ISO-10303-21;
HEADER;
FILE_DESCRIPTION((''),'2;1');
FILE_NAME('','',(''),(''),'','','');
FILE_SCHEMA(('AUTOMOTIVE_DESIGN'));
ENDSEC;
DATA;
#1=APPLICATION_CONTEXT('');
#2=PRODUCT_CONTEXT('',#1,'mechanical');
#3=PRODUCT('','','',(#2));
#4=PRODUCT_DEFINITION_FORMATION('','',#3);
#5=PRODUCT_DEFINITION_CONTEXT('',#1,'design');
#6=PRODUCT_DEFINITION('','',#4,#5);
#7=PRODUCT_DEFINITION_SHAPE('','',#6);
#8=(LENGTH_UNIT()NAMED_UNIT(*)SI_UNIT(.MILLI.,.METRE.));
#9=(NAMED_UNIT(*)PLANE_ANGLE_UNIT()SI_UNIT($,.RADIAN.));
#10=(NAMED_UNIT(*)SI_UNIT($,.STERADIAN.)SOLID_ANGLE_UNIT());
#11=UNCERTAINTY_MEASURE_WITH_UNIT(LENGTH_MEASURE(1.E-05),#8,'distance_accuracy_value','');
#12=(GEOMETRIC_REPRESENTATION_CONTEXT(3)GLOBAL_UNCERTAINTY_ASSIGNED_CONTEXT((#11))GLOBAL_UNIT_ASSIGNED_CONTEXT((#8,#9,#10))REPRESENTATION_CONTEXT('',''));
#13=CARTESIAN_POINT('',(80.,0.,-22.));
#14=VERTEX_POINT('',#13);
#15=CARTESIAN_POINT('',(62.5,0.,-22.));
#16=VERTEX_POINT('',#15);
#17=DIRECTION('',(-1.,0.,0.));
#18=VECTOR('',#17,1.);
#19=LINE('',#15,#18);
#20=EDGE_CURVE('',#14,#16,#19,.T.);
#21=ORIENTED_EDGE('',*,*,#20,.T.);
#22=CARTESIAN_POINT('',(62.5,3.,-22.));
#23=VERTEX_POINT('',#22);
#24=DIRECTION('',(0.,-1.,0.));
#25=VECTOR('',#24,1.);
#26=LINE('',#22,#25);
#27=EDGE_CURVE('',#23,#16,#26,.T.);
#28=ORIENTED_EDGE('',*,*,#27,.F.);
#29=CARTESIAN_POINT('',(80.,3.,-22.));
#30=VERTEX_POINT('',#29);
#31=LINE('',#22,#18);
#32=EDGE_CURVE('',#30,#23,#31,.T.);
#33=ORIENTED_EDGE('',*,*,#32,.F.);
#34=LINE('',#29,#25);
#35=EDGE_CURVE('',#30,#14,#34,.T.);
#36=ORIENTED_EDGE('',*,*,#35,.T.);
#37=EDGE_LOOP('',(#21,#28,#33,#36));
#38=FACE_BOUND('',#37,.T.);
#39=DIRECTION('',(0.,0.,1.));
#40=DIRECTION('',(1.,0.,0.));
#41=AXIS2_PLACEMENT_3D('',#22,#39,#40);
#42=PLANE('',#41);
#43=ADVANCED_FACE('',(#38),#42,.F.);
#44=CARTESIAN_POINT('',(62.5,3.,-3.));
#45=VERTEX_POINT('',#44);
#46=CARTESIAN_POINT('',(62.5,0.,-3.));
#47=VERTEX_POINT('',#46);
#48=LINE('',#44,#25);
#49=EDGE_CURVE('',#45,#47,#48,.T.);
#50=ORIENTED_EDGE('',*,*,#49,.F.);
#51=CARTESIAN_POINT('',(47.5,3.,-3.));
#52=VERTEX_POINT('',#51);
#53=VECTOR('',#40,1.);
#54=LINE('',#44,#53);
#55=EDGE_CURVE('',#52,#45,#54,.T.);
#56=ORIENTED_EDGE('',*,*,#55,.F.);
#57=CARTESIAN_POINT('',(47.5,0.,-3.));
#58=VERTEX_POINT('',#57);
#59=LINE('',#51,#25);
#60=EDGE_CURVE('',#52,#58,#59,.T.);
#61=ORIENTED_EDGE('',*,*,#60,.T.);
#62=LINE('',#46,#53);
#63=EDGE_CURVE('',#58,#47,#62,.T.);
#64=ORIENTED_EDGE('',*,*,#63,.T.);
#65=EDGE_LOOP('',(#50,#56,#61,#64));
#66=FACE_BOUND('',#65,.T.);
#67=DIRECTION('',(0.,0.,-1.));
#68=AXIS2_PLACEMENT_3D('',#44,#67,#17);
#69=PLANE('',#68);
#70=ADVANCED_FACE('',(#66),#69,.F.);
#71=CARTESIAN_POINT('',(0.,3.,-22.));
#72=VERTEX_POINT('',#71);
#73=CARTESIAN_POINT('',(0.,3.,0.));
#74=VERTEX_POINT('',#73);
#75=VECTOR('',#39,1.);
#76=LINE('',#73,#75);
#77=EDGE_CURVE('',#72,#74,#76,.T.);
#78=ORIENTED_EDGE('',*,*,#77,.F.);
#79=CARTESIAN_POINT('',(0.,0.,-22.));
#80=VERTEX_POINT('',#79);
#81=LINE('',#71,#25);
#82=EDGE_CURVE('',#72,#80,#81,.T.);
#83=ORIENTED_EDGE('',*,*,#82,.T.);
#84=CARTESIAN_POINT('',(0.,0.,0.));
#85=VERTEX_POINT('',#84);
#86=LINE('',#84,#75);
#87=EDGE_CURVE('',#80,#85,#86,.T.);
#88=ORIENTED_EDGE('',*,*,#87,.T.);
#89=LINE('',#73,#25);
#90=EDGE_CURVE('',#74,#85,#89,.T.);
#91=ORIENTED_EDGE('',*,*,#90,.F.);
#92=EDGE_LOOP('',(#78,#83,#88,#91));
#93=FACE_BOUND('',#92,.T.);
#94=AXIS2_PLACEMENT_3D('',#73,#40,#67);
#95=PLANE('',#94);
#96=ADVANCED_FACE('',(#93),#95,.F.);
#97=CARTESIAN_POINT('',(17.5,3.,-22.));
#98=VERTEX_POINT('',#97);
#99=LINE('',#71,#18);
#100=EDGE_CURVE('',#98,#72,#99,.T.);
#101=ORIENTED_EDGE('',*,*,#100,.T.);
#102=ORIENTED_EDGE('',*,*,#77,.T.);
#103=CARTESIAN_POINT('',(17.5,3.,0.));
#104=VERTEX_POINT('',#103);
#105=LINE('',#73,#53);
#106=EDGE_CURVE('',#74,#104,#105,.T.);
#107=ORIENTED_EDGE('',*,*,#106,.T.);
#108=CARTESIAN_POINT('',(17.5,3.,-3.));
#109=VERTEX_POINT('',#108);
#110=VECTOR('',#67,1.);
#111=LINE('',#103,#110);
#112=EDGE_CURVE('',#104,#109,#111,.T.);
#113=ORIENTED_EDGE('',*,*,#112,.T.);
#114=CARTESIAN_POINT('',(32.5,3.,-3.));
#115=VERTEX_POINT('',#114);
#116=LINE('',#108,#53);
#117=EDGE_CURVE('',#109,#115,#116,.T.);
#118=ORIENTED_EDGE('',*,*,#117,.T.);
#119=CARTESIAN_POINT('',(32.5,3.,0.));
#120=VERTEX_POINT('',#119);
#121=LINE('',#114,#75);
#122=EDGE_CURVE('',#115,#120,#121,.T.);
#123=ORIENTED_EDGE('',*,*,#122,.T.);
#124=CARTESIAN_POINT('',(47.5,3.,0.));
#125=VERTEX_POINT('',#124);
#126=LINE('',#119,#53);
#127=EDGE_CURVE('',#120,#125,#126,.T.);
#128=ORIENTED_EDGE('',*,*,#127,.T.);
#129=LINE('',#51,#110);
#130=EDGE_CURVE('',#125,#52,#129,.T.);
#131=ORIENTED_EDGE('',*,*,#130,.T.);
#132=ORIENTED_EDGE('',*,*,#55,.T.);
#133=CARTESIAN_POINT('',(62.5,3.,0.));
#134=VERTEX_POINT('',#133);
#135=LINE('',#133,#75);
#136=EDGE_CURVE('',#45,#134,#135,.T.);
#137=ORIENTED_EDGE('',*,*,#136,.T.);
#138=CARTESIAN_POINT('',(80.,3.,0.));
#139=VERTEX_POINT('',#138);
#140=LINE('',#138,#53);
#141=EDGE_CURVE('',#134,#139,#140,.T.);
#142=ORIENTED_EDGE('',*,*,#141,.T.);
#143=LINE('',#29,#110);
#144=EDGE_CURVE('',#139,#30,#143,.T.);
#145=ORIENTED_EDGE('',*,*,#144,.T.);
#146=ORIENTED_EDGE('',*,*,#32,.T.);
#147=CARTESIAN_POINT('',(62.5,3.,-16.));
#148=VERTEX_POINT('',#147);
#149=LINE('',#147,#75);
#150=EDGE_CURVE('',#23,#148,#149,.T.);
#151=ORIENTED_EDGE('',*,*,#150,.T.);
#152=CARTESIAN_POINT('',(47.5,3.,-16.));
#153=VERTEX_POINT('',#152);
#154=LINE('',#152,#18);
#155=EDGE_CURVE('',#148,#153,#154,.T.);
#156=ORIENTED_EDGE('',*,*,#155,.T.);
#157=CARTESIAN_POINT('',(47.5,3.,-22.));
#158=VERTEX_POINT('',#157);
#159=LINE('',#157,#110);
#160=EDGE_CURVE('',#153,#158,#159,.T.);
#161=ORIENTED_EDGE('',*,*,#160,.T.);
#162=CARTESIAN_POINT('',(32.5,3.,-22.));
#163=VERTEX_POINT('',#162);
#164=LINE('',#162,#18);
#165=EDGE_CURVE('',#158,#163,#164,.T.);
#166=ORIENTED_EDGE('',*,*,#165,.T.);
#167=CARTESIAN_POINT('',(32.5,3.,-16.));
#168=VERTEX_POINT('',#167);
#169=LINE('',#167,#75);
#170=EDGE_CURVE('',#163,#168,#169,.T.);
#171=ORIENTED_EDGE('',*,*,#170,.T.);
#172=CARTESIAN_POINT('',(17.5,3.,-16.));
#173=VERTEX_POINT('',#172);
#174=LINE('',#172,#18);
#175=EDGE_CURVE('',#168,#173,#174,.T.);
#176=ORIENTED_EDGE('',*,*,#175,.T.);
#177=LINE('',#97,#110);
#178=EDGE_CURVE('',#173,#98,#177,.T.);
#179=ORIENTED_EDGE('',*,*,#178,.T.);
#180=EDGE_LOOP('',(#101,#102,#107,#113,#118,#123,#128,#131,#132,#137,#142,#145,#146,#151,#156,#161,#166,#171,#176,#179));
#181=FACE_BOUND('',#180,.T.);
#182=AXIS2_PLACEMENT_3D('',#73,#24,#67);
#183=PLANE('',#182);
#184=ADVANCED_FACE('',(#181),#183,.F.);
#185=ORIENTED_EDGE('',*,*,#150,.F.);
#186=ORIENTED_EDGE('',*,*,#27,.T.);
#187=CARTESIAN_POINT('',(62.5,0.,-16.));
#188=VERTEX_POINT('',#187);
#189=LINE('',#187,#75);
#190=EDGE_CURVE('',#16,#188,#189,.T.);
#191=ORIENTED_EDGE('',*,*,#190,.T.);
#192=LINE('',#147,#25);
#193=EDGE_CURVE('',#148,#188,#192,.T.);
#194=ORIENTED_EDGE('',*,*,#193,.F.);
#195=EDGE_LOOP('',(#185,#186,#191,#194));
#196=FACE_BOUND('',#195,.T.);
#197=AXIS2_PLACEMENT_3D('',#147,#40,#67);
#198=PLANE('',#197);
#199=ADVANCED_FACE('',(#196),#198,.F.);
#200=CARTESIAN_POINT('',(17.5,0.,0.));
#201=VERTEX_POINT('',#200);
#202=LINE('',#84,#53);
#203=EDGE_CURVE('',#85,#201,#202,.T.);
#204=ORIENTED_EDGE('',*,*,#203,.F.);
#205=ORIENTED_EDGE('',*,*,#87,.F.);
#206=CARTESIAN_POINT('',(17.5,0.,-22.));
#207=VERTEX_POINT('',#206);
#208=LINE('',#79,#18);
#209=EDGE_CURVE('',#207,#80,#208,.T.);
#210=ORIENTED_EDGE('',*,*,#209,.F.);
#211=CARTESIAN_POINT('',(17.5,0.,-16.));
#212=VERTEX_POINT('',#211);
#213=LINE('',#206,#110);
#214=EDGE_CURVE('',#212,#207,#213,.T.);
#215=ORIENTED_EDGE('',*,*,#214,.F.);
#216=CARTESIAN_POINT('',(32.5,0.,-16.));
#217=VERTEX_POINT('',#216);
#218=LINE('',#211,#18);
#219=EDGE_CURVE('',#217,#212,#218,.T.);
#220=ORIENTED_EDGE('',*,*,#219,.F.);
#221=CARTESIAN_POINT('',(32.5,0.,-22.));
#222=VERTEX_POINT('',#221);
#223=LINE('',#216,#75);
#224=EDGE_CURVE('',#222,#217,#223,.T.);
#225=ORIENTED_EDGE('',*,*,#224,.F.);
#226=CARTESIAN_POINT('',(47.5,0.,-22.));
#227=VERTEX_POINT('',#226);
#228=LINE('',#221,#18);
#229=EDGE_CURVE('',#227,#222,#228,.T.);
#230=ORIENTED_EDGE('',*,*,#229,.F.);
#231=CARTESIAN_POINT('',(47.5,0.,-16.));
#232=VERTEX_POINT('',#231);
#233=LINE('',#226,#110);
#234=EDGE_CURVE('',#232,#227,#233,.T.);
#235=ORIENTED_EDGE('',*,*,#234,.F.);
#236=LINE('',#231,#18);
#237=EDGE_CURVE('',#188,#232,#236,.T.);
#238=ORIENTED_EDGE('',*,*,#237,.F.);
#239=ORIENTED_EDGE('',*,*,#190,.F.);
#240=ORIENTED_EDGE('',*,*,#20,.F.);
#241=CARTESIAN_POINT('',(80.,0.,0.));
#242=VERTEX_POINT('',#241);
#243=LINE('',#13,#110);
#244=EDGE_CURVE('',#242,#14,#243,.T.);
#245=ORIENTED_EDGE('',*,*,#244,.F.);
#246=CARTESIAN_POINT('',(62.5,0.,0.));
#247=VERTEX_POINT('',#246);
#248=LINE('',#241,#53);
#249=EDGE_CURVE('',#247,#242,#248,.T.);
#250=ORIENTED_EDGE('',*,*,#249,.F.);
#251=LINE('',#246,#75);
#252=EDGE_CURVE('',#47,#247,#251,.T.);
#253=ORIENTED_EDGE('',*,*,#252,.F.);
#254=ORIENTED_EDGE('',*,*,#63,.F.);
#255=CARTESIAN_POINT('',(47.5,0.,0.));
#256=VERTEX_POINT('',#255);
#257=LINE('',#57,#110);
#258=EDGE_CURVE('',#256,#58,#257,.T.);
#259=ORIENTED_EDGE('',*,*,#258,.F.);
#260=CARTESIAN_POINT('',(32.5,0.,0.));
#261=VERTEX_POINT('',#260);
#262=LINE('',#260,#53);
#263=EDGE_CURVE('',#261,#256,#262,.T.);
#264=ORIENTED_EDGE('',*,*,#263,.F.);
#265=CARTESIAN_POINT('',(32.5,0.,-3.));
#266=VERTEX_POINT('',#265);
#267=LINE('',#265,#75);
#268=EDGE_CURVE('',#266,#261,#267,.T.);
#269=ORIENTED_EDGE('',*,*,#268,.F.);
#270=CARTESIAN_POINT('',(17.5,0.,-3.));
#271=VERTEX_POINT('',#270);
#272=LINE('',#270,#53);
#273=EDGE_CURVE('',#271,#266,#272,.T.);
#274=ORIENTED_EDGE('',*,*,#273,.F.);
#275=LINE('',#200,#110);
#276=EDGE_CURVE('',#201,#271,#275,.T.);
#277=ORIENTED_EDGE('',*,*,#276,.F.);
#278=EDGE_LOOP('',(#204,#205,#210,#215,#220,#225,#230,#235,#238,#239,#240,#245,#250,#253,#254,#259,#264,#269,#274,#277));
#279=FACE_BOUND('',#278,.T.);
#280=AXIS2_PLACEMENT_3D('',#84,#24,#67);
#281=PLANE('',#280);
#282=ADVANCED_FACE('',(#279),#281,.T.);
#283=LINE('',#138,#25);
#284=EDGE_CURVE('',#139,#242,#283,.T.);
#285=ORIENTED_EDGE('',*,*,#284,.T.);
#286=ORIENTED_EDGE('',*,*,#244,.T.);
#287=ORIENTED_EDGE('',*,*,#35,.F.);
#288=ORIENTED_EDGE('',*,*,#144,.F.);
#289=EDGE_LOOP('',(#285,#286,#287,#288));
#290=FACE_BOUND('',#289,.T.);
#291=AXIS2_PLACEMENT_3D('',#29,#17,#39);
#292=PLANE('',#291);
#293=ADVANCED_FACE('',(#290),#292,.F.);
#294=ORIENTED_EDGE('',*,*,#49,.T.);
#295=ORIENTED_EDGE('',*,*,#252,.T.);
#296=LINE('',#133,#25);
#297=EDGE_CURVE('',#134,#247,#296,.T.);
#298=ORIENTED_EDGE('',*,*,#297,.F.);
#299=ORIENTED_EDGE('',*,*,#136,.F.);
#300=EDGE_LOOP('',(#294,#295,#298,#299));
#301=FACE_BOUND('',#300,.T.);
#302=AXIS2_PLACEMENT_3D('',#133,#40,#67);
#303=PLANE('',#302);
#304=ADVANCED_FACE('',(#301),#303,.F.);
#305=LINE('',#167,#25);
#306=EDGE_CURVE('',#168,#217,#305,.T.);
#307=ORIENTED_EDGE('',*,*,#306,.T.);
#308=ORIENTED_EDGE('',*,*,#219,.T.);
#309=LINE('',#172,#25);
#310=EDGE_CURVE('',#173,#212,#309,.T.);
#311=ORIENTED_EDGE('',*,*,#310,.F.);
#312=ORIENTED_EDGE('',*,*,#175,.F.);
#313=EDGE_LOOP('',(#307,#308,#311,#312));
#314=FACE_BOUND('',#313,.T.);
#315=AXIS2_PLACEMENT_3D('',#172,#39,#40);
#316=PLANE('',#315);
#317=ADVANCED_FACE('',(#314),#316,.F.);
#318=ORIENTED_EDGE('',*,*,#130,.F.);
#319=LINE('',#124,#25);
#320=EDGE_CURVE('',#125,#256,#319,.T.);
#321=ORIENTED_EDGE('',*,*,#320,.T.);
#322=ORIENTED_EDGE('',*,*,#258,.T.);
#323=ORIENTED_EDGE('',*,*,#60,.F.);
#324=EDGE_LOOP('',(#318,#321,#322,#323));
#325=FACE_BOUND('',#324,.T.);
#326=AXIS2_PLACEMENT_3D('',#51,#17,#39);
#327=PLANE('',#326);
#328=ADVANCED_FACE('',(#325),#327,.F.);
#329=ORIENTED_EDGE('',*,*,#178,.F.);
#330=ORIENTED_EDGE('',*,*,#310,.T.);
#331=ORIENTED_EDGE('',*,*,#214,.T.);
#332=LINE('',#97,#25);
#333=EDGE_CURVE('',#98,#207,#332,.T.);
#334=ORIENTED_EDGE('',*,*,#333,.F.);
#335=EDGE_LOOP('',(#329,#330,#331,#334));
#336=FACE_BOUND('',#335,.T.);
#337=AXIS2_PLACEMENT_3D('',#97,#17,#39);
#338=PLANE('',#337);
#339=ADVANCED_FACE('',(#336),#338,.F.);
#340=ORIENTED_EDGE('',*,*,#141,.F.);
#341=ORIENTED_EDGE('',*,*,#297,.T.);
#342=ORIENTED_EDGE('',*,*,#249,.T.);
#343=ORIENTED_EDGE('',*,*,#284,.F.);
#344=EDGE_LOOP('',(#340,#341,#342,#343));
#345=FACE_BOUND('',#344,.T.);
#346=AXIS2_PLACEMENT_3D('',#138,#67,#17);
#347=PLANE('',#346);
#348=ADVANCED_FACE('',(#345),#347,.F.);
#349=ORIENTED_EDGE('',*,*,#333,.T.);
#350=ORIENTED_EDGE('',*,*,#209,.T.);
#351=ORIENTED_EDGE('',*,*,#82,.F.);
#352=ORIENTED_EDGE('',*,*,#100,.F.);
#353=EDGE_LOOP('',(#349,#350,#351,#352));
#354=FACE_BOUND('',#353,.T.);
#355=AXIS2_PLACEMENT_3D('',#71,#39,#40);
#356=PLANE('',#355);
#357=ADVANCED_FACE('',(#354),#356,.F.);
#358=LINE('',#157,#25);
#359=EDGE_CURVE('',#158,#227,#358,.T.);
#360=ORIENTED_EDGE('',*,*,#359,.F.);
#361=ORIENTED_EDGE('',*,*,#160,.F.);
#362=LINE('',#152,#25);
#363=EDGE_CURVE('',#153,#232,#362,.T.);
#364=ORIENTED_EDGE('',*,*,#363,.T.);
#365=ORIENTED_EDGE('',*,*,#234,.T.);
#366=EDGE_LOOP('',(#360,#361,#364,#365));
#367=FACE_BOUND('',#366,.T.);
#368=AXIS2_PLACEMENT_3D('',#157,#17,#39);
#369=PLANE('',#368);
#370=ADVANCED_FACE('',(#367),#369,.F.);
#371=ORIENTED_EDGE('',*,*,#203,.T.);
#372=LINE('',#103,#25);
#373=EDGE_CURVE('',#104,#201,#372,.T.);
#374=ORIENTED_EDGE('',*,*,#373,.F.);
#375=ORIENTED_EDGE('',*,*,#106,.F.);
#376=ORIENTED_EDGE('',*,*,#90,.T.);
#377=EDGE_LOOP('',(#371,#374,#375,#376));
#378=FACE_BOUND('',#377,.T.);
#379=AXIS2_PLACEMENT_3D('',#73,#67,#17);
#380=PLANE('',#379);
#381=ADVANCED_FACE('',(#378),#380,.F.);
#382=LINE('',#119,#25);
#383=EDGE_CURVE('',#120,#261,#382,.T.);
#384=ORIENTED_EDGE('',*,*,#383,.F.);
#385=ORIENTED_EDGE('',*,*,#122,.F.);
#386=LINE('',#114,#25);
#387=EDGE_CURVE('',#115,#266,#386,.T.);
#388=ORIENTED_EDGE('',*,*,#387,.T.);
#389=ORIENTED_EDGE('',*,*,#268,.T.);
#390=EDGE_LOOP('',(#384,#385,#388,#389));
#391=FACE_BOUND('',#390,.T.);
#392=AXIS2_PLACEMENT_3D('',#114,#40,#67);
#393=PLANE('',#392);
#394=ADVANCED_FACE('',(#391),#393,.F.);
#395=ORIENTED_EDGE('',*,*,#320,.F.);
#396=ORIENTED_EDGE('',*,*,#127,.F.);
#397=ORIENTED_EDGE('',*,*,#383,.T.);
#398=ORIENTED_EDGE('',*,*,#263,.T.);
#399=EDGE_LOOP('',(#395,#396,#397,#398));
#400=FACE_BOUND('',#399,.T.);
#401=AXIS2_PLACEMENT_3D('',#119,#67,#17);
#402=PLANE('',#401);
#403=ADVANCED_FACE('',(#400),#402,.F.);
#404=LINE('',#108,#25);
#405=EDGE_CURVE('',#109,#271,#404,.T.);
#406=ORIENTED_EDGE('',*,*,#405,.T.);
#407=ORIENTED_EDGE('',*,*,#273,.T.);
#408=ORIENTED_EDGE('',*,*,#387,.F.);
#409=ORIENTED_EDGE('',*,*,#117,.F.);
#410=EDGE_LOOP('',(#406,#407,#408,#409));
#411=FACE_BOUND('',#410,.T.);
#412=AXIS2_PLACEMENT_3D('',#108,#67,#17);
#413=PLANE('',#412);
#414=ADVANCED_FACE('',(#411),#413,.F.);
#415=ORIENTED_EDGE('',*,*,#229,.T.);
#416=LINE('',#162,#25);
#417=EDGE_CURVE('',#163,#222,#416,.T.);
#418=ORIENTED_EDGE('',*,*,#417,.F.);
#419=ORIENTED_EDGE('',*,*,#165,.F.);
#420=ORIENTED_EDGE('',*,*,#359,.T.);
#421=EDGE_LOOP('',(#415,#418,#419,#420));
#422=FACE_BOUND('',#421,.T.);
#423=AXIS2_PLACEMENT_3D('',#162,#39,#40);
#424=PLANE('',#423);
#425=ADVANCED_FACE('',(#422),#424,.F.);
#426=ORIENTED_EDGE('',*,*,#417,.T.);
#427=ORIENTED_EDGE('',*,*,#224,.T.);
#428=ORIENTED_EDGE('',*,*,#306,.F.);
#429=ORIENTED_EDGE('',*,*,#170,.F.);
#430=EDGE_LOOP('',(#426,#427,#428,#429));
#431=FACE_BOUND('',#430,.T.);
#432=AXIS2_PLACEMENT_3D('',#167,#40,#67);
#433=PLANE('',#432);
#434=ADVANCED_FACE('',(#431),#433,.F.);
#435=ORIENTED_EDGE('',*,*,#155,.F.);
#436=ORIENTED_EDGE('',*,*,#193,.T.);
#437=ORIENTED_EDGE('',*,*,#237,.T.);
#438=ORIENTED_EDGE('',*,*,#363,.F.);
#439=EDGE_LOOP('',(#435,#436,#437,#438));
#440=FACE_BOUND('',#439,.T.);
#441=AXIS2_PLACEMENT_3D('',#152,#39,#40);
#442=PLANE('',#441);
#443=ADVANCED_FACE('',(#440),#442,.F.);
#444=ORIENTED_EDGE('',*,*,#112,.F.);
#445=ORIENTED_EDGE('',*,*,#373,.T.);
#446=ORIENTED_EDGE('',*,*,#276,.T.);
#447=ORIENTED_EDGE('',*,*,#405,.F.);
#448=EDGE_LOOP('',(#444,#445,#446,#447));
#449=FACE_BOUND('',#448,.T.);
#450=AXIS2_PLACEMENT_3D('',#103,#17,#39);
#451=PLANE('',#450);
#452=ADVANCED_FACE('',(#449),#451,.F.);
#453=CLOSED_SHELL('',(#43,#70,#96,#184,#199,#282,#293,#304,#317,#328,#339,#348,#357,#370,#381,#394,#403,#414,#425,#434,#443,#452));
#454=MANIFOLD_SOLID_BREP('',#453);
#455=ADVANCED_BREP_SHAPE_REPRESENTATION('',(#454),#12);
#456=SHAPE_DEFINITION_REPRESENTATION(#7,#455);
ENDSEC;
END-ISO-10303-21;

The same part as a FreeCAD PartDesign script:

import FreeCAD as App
import Part
import Sketcher

V = App.Vector

doc = App.newDocument("Part")
body = doc.addObject("PartDesign::Body", "Body")

sketch1 = body.newObject("Sketcher::SketchObject", "Sketch")
sketch1.AttachmentSupport = (doc.getObject("XZ_Plane"), [""])
sketch1.MapMode = "FlatFace"
sketch1.addGeometry([
    Part.LineSegment(V(0, 0, 0), V(17.5, 0, 0)),
    Part.LineSegment(V(17.5, 0, 0), V(17.5, -3, 0)),
    Part.LineSegment(V(17.5, -3, 0), V(32.5, -3, 0)),
    Part.LineSegment(V(32.5, -3, 0), V(32.5, 0, 0)),
    Part.LineSegment(V(32.5, 0, 0), V(47.5, 0, 0)),
    Part.LineSegment(V(47.5, 0, 0), V(47.5, -3, 0)),
    Part.LineSegment(V(47.5, -3, 0), V(62.5, -3, 0)),
    Part.LineSegment(V(62.5, -3, 0), V(62.5, 0, 0)),
    Part.LineSegment(V(62.5, 0, 0), V(80, 0, 0)),
    Part.LineSegment(V(80, 0, 0), V(80, -22, 0)),
    Part.LineSegment(V(80, -22, 0), V(62.5, -22, 0)),
    Part.LineSegment(V(62.5, -22, 0), V(62.5, -16, 0)),
    Part.LineSegment(V(62.5, -16, 0), V(47.5, -16, 0)),
    Part.LineSegment(V(47.5, -16, 0), V(47.5, -22, 0)),
    Part.LineSegment(V(47.5, -22, 0), V(32.5, -22, 0)),
    Part.LineSegment(V(32.5, -22, 0), V(32.5, -16, 0)),
    Part.LineSegment(V(32.5, -16, 0), V(17.5, -16, 0)),
    Part.LineSegment(V(17.5, -16, 0), V(17.5, -22, 0)),
    Part.LineSegment(V(17.5, -22, 0), V(0, -22, 0)),
    Part.LineSegment(V(0, -22, 0), V(0, 0, 0)),
], False)
sketch1.addConstraint([
    Sketcher.Constraint("Coincident", 0, 2, 1, 1),
    Sketcher.Constraint("Coincident", 1, 2, 2, 1),
    Sketcher.Constraint("Coincident", 2, 2, 3, 1),
    Sketcher.Constraint("Coincident", 3, 2, 4, 1),
    Sketcher.Constraint("Coincident", 4, 2, 5, 1),
    Sketcher.Constraint("Coincident", 5, 2, 6, 1),
    Sketcher.Constraint("Coincident", 6, 2, 7, 1),
    Sketcher.Constraint("Coincident", 7, 2, 8, 1),
    Sketcher.Constraint("Coincident", 8, 2, 9, 1),
    Sketcher.Constraint("Coincident", 9, 2, 10, 1),
    Sketcher.Constraint("Coincident", 10, 2, 11, 1),
    Sketcher.Constraint("Coincident", 11, 2, 12, 1),
    Sketcher.Constraint("Coincident", 12, 2, 13, 1),
    Sketcher.Constraint("Coincident", 13, 2, 14, 1),
    Sketcher.Constraint("Coincident", 14, 2, 15, 1),
    Sketcher.Constraint("Coincident", 15, 2, 16, 1),
    Sketcher.Constraint("Coincident", 16, 2, 17, 1),
    Sketcher.Constraint("Coincident", 17, 2, 18, 1),
    Sketcher.Constraint("Coincident", 18, 2, 19, 1),
    Sketcher.Constraint("Coincident", 19, 2, 0, 1),
    Sketcher.Constraint("Horizontal", 0),
    Sketcher.Constraint("Vertical", 1),
    Sketcher.Constraint("Horizontal", 2),
    Sketcher.Constraint("Vertical", 3),
    Sketcher.Constraint("Horizontal", 4),
    Sketcher.Constraint("Vertical", 5),
    Sketcher.Constraint("Horizontal", 6),
    Sketcher.Constraint("Vertical", 7),
    Sketcher.Constraint("Horizontal", 8),
    Sketcher.Constraint("Vertical", 9),
    Sketcher.Constraint("Horizontal", 10),
    Sketcher.Constraint("Vertical", 11),
    Sketcher.Constraint("Horizontal", 12),
    Sketcher.Constraint("Vertical", 13),
    Sketcher.Constraint("Horizontal", 14),
    Sketcher.Constraint("Vertical", 15),
    Sketcher.Constraint("Horizontal", 16),
    Sketcher.Constraint("Vertical", 17),
    Sketcher.Constraint("Horizontal", 18),
    Sketcher.Constraint("Vertical", 19),
    Sketcher.Constraint("Coincident", 19, 2, -1, 1),
    Sketcher.Constraint("PointOnObject", 3, 2, -1),
    Sketcher.Constraint("PointOnObject", 7, 2, -1),
    Sketcher.Constraint("Horizontal", 2, 2, 5, 2),
    Sketcher.Constraint("Horizontal", 10, 2, 13, 2),
    Sketcher.Constraint("Horizontal", 12, 2, 15, 2),
    Sketcher.Constraint("Horizontal", 14, 2, 17, 2),
    Sketcher.Constraint("Vertical", 7, 2, 10, 2),
    Sketcher.Constraint("Vertical", 5, 2, 12, 2),
    Sketcher.Constraint("Vertical", 3, 2, 14, 2),
    Sketcher.Constraint("Vertical", 1, 2, 16, 2),
    Sketcher.Constraint("Equal", 2, 4),
    Sketcher.Constraint("Equal", 4, 6),
    Sketcher.Constraint("Equal", 0, 8),
    Sketcher.Constraint("DistanceX", 2, 1, 2, 2, 15.0),
    Sketcher.Constraint("DistanceY", 1, 2, 1, 1, 3.0),
    Sketcher.Constraint("DistanceY", 9, 2, 9, 1, 22.0),
    Sketcher.Constraint("DistanceY", 11, 1, 11, 2, 6.0),
    Sketcher.Constraint("DistanceX", 0, 1, 0, 2, 17.5),
])
pad1 = body.newObject("PartDesign::Pad", "Pad")
pad1.Profile = sketch1
pad1.Length = 3
pad1.Reversed = True

doc.recompute()
